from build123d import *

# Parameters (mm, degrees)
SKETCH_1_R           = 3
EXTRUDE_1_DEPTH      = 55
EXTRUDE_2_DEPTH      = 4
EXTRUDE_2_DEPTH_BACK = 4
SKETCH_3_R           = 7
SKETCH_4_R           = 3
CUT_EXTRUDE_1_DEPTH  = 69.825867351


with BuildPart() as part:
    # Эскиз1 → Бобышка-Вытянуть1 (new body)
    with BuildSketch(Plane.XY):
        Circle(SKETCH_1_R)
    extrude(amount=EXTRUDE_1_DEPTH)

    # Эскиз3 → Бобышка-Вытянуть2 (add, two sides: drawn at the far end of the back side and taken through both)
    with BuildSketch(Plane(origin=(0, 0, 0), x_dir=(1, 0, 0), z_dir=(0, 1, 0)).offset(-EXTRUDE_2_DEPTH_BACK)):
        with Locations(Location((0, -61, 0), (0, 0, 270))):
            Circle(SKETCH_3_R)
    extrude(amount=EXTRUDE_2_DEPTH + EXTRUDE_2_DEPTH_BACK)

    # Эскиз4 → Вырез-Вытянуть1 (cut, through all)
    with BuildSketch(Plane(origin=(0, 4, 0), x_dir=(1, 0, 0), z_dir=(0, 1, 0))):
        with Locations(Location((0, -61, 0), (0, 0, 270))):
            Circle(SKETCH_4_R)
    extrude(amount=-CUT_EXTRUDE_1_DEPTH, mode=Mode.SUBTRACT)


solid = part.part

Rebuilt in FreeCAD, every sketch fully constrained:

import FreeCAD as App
import Part
import Sketcher
from FreeCAD import Vector

doc = App.newDocument("Part")
body = doc.addObject("PartDesign::Body", "Body")

# Sketch on XY plane
sketch1 = body.newObject("Sketcher::SketchObject", "Sketch")
sketch1.AttachmentSupport = (doc.getObject("XY_Plane"), [""])
sketch1.MapMode = "FlatFace"
sketch1.addGeometry(Part.Circle(Vector(0, 0, 0), Vector(0, 0, 1), 3), False)
sketch1.addConstraint(Sketcher.Constraint("Coincident", 0, 3, -1, 1))
sketch1.addConstraint(Sketcher.Constraint("Diameter", 0, 6.0))
pad1 = body.newObject("PartDesign::Pad", "Pad")
pad1.Profile = sketch1
pad1.Length = 55

# Sketch on XZ plane
sketch2 = body.newObject("Sketcher::SketchObject", "Sketch001")
sketch2.AttachmentSupport = (doc.getObject("XZ_Plane"), [""])
sketch2.MapMode = "FlatFace"
sketch2.addGeometry(Part.Circle(Vector(0, 61, 0), Vector(0, 0, 1), 7), False)
sketch2.addConstraint(Sketcher.Constraint("PointOnObject", 0, 3, -2))
sketch2.addConstraint(Sketcher.Constraint("Diameter", 0, 14.0))
sketch2.addConstraint(Sketcher.Constraint("DistanceY", -1, 1, 0, 3, 61.0))
pad2 = body.newObject("PartDesign::Pad", "Pad001")
pad2.Profile = sketch2
pad2.Type = "TwoLengths"
pad2.Length = 4
pad2.Length2 = 4
pad2.Reversed = True

# Sketch on XZ plane
sketch3 = body.newObject("Sketcher::SketchObject", "Sketch002")
sketch3.AttachmentSupport = (doc.getObject("XZ_Plane"), [""])
sketch3.MapMode = "FlatFace"
sketch3.AttachmentOffset = App.Placement(Vector(0, 0, -4), App.Rotation())
sketch3.addGeometry(Part.Circle(Vector(0, 61, 0), Vector(0, 0, 1), 3), False)
sketch3.addConstraint(Sketcher.Constraint("PointOnObject", 0, 3, -2))
sketch3.addConstraint(Sketcher.Constraint("Diameter", 0, 6.0))
sketch3.addConstraint(Sketcher.Constraint("DistanceY", -1, 1, 0, 3, 61.0))
pocket1 = body.newObject("PartDesign::Pocket", "Pocket")
pocket1.Profile = sketch3
pocket1.Type = "ThroughAll"
pocket1.Reversed = True

doc.recompute()
